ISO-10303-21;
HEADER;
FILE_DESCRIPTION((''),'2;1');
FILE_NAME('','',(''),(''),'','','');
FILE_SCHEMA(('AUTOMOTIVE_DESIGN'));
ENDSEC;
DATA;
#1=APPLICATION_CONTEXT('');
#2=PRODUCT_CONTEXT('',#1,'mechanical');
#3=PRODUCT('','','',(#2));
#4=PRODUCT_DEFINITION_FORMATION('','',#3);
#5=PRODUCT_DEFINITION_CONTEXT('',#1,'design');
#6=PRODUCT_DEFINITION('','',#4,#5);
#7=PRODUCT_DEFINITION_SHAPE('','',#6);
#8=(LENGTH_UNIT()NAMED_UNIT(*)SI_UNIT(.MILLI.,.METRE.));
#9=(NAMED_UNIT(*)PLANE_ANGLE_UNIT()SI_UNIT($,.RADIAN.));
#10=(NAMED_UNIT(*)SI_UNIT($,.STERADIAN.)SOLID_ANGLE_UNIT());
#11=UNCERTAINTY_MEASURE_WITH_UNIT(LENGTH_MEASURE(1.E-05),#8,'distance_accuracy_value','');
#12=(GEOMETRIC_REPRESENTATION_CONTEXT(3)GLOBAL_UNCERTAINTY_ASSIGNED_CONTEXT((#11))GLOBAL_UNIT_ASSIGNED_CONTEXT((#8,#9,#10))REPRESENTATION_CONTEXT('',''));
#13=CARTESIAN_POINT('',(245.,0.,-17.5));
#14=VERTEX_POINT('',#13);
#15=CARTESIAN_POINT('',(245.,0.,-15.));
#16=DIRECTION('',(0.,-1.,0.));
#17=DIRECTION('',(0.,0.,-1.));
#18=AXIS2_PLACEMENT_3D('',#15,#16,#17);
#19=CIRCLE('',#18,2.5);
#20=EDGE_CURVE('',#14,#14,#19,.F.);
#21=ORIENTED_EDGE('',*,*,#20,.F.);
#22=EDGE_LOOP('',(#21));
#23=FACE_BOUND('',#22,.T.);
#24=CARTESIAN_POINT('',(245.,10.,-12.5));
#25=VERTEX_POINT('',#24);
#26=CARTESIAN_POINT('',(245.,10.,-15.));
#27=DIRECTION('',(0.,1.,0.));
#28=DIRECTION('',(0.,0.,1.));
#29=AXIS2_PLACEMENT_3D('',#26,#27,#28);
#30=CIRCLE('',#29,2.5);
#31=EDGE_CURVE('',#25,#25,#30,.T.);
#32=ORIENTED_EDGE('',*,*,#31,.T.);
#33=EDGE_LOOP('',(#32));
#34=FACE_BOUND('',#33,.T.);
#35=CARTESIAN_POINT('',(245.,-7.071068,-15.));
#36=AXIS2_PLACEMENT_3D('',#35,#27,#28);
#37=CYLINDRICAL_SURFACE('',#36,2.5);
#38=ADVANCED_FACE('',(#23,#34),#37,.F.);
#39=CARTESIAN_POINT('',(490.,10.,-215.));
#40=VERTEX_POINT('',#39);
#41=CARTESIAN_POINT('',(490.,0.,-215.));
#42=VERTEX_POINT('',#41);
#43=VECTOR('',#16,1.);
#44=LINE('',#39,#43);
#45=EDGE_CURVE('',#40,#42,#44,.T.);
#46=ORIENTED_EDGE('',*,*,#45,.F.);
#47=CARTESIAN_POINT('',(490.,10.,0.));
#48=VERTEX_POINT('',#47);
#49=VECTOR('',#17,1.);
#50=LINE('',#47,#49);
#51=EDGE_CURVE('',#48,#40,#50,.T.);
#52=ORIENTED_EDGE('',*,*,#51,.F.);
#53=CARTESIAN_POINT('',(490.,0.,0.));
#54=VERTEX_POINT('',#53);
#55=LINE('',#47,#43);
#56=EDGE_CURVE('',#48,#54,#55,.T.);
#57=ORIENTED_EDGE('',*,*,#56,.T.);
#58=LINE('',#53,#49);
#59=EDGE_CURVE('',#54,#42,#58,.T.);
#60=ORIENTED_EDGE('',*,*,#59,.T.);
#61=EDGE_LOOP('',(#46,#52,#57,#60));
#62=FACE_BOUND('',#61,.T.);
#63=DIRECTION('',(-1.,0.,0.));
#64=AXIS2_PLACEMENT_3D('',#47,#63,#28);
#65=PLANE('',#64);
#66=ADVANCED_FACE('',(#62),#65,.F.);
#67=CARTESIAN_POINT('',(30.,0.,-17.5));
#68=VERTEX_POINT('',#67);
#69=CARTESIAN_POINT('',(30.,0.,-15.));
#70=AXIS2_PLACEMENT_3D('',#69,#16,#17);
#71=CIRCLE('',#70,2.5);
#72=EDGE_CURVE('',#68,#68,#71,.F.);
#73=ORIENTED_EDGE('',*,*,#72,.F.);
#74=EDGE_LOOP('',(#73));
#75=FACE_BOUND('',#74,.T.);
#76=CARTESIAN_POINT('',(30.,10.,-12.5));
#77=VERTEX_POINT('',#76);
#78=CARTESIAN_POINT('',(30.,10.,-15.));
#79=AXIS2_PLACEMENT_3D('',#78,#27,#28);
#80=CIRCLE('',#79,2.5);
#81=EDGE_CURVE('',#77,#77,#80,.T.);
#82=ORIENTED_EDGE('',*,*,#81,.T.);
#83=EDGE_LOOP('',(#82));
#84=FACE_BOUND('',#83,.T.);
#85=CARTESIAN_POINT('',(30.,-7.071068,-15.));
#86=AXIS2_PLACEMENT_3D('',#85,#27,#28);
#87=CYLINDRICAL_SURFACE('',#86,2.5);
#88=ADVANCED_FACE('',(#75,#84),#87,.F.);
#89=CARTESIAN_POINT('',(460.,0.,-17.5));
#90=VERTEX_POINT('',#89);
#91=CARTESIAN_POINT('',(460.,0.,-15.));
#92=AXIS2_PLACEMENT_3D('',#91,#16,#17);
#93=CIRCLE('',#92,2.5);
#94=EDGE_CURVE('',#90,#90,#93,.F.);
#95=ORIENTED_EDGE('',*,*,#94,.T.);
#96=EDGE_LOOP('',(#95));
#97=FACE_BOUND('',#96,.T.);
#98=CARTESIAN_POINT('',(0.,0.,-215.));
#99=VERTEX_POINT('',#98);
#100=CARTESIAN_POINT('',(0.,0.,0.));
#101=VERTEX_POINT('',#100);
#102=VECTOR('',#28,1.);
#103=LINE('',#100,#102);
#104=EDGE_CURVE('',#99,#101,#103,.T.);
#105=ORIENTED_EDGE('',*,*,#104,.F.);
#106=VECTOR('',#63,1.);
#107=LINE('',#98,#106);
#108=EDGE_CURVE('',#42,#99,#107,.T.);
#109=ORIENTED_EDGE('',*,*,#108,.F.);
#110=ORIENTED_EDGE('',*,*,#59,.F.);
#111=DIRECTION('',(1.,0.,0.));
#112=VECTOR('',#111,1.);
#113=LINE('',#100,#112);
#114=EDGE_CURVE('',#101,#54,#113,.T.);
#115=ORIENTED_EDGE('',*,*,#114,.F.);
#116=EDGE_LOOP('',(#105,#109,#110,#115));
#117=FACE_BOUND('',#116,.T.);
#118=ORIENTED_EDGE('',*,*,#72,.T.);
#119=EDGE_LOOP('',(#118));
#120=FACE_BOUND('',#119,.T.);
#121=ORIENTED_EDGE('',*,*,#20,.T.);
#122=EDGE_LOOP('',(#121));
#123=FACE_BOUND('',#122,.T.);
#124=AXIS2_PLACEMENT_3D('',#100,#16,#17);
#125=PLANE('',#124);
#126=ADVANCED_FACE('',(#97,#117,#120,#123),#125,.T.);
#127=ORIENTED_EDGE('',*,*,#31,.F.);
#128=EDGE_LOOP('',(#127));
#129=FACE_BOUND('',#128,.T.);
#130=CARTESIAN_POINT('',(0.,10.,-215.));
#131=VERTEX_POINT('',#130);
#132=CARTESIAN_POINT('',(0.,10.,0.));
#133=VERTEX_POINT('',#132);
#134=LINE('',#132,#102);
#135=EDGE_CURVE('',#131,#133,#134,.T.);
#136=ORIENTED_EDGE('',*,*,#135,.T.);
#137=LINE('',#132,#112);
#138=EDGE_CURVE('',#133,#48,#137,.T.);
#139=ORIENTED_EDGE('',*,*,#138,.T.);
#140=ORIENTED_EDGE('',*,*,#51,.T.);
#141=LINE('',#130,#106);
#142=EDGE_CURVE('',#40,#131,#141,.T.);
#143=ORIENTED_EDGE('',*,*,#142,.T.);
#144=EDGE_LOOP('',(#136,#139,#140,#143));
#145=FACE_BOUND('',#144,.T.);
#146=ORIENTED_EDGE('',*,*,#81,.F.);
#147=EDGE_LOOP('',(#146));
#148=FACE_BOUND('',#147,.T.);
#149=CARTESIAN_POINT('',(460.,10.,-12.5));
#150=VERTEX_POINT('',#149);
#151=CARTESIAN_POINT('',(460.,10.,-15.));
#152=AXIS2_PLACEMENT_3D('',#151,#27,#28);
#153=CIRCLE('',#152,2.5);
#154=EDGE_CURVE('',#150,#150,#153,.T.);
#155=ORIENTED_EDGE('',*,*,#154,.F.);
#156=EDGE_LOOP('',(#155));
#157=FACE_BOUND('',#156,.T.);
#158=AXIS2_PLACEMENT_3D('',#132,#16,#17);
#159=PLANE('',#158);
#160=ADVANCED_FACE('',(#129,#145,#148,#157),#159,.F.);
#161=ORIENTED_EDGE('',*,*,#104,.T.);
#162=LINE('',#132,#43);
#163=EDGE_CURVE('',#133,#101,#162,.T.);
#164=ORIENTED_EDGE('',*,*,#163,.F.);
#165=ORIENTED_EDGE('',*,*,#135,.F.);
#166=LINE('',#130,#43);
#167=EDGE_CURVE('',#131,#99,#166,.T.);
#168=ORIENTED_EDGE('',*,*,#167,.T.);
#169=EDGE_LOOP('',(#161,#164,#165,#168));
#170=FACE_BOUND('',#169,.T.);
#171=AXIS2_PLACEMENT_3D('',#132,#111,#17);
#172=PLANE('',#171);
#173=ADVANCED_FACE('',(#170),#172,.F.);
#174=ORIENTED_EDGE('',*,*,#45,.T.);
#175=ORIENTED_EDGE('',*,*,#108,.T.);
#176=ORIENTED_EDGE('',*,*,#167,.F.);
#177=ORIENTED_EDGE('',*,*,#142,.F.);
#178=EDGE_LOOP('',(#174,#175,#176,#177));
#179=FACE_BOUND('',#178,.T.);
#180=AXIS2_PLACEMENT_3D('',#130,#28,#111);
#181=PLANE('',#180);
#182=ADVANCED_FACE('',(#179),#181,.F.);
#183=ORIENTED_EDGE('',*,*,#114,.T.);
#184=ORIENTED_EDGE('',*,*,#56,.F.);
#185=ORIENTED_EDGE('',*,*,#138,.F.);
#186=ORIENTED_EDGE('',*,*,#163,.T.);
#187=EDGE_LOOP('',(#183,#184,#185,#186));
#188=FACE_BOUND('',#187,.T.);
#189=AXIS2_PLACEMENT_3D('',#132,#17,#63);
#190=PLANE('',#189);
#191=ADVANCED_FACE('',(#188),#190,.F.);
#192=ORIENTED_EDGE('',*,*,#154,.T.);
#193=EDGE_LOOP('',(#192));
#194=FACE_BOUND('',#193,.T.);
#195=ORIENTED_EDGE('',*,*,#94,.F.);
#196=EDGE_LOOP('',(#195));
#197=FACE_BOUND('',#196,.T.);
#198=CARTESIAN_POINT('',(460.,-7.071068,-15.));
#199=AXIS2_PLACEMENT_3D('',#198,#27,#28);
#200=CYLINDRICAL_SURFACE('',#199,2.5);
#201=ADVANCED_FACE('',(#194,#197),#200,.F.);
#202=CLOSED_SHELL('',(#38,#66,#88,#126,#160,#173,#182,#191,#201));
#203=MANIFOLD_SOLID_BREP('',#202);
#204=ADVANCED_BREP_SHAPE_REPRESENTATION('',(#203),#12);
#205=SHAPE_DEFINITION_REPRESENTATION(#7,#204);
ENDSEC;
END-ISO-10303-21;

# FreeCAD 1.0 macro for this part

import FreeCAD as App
import Part
import Sketcher

V = App.Vector
Q = App.Units.Quantity

doc = App.newDocument("Part")
body = doc.addObject("PartDesign::Body", "Body")

# Sketch on XZ plane
sketch1 = doc.addObject("Sketcher::SketchObject", "Sketch")
body.addObject(sketch1)
sketch1.AttachmentSupport = (doc.XZ_Plane, [""])
sketch1.MapMode = "FlatFace"
sketch1.addGeometry([
    Part.LineSegment(V(0, -215, 0), V(0, 0, 0)),
    Part.LineSegment(V(0, 0, 0), V(490, 0, 0)),
    Part.LineSegment(V(490, 0, 0), V(490, -215, 0)),
    Part.LineSegment(V(490, -215, 0), V(0, -215, 0)),
], False)
sketch1.addConstraint([
    Sketcher.Constraint("Coincident", 0, 2, 1, 1),
    Sketcher.Constraint("Coincident", 1, 2, 2, 1),
    Sketcher.Constraint("Coincident", 2, 2, 3, 1),
    Sketcher.Constraint("Coincident", 3, 2, 0, 1),
    Sketcher.Constraint("Vertical", 0),
    Sketcher.Constraint("Horizontal", 1),
    Sketcher.Constraint("Vertical", 2),
    Sketcher.Constraint("Horizontal", 3),
    Sketcher.Constraint("Coincident", 0, 2, -1, 1),
    Sketcher.Constraint("DistanceX", 1, 1, 1, 2, Q("490 mm")),
    Sketcher.Constraint("DistanceY", 0, 1, 0, 2, Q("215 mm")),
])
pad1 = doc.addObject("PartDesign::Pad", "Pad")
body.addObject(pad1)
pad1.Profile = sketch1
pad1.Length = 10
pad1.Reversed = True

# Sketch on XZ plane
sketch2 = doc.addObject("Sketcher::SketchObject", "Sketch001")
body.addObject(sketch2)
sketch2.AttachmentSupport = (doc.XZ_Plane, [""])
sketch2.MapMode = "FlatFace"
sketch2.AttachmentOffset = App.Placement(V(0, 0, -10), App.Rotation())
sketch2.addGeometry([
    Part.Circle(V(30, -15, 0), V(0, 0, 1), 2.5),
    Part.Circle(V(460, -15, 0), V(0, 0, 1), 2.5),
    Part.Circle(V(245, -15, 0), V(0, 0, 1), 2.5),
], False)
sketch2.addConstraint([
    Sketcher.Constraint("Equal", 0, 1),
    Sketcher.Constraint("Equal", 1, 2),
    Sketcher.Constraint("Horizontal", 0, 3, 1, 3),
    Sketcher.Constraint("Horizontal", 1, 3, 2, 3),
    Sketcher.Constraint("Diameter", 0, Q("5 mm")),
    Sketcher.Constraint("DistanceX", -1, 1, 0, 3, Q("30 mm")),
    Sketcher.Constraint("DistanceY", 0, 3, -1, 1, Q("15 mm")),
    Sketcher.Constraint("DistanceX", -1, 1, 1, 3, Q("460 mm")),
    Sketcher.Constraint("DistanceX", -1, 1, 2, 3, Q("245 mm")),
])
pocket1 = doc.addObject("PartDesign::Pocket", "Pocket")
body.addObject(pocket1)
pocket1.Profile = sketch2
pocket1.Length = 10
pocket1.Reversed = True

doc.recompute()
